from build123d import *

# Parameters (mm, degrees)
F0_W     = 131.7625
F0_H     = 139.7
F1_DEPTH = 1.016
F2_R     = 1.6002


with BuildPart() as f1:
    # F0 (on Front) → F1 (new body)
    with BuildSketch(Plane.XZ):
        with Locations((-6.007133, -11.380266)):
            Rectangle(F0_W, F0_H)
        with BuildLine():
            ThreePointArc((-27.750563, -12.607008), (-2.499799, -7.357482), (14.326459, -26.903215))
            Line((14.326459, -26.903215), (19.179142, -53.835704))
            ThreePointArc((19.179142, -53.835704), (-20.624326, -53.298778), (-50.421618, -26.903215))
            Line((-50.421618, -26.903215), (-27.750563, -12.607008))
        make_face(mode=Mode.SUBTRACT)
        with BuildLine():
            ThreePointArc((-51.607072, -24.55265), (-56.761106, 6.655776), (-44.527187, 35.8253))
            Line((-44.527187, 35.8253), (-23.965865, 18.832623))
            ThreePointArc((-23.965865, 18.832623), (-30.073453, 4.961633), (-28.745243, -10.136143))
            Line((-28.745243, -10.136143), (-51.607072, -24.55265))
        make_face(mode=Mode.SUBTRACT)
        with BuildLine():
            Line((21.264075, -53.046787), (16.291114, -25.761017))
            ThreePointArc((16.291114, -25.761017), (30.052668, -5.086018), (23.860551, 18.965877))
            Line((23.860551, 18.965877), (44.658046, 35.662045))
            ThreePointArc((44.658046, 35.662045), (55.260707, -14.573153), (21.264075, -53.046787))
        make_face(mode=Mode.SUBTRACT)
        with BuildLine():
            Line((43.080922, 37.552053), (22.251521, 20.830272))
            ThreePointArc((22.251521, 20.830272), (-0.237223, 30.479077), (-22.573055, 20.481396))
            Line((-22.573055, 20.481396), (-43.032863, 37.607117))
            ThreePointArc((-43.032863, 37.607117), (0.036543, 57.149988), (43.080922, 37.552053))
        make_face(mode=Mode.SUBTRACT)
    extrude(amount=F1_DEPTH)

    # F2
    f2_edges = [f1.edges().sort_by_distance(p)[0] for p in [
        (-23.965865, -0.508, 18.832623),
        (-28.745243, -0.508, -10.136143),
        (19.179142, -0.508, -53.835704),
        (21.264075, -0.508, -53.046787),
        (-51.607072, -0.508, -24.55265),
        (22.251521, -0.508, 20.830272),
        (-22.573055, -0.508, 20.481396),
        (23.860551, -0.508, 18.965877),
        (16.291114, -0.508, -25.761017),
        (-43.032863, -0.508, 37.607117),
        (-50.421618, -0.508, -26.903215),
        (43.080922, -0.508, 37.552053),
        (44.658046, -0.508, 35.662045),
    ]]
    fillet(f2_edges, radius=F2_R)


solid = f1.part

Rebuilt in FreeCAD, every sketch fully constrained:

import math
import FreeCAD as App
import Part
import Sketcher
Q = App.Units.Quantity


def edges_at(feature, points):
    """Names of the edges that pass closest to the given points."""
    edges = feature.Shape.Edges
    near = lambda p: min(range(len(edges)), key=lambda i: edges[i].distToShape(Part.Vertex(*p))[0])
    return sorted({f"Edge{near(p) + 1}" for p in points})


def add_polygon(sketch, points):
    """Adds a closed chain of lines whose ends are joined by coincident constraints."""
    first, n = sketch.GeometryCount, len(points)
    for a, b in zip(points, points[1:] + points[:1]):
        sketch.addGeometry(Part.LineSegment(App.Vector(*a, 0), App.Vector(*b, 0)), False)
    for i in range(n):
        sketch.addConstraint(Sketcher.Constraint("Coincident", first + i, 2, first + (i + 1) % n, 1))

doc = App.newDocument("Part")
body = doc.addObject("PartDesign::Body", "Body")

# Sketch on XZ plane
sketch1 = body.newObject("Sketcher::SketchObject", "Sketch")
sketch1.AttachmentSupport = (doc.getObject("XZ_Plane"), [""])
sketch1.MapMode = "FlatFace"
add_polygon(sketch1, [(-72, 58), (-72, -81), (60, -81), (60, 58)])  # lines 0-3
sketch1.addGeometry(Part.LineSegment(App.Vector(-50, -27, 0), App.Vector(-28, -13, 0)), False)  # 4
sketch1.addGeometry(Part.ArcOfCircle(Part.Circle(App.Vector(-11, -31, 0), App.Vector(0, 0, 1), 25), math.radians(10), math.radians(132)), False)  # 5
sketch1.addGeometry(Part.LineSegment(App.Vector(14, -27, 0), App.Vector(19, -54, 0)), False)  # 6
sketch1.addGeometry(Part.ArcOfCircle(Part.Circle(App.Vector(0, 0, 0), App.Vector(0, 0, 1), 57), math.radians(-152), math.radians(-70)), False)  # 7
sketch1.addGeometry(Part.ArcOfCircle(Part.Circle(App.Vector(0, 0, 0), App.Vector(0, 0, 1), 57), math.radians(-68), math.radians(39)), False)  # 8
sketch1.addGeometry(Part.LineSegment(App.Vector(21, -53, 0), App.Vector(16, -26, 0)), False)  # 9
sketch1.addGeometry(Part.ArcOfCircle(Part.Circle(App.Vector(0, 0, 0), App.Vector(0, 0, 1), 30), math.radians(-58), math.radians(38)), False)  # 10
sketch1.addGeometry(Part.LineSegment(App.Vector(24, 19, 0), App.Vector(45, 36, 0)), False)  # 11
sketch1.addGeometry(Part.LineSegment(App.Vector(-29, -10, 0), App.Vector(-52, -25, 0)), False)  # 12
sketch1.addGeometry(Part.ArcOfCircle(Part.Circle(App.Vector(0, 0, 0), App.Vector(0, 0, 1), 57), math.radians(141), math.radians(205)), False)  # 13
sketch1.addGeometry(Part.LineSegment(App.Vector(-45, 36, 0), App.Vector(-24, 19, 0)), False)  # 14
sketch1.addGeometry(Part.ArcOfCircle(Part.Circle(App.Vector(0, 0, 0), App.Vector(0, 0, 1), 30), math.radians(142), math.radians(199)), False)  # 15
sketch1.addGeometry(Part.ArcOfCircle(Part.Circle(App.Vector(0, 0, 0), App.Vector(0, 0, 1), 57), math.radians(41), math.radians(139)), False)  # 16
sketch1.addGeometry(Part.LineSegment(App.Vector(43, 38, 0), App.Vector(22, 21, 0)), False)  # 17
sketch1.addGeometry(Part.ArcOfCircle(Part.Circle(App.Vector(0, 0, 0), App.Vector(0, 0, 1), 30), math.radians(43), math.radians(138)), False)  # 18
sketch1.addGeometry(Part.LineSegment(App.Vector(-23, 20, 0), App.Vector(-43, 38, 0)), False)  # 19
sketch1.addConstraint(Sketcher.Constraint("Coincident", 4, 2, 5, 2))
sketch1.addConstraint(Sketcher.Constraint("Tangent", 5, 1, 6, 1))
sketch1.addConstraint(Sketcher.Constraint("Coincident", 6, 2, 7, 2))
sketch1.addConstraint(Sketcher.Constraint("Coincident", 7, 1, 4, 1))
sketch1.addConstraint(Sketcher.Constraint("Coincident", 8, 1, 9, 1))
sketch1.addConstraint(Sketcher.Constraint("Coincident", 9, 2, 10, 1))
sketch1.addConstraint(Sketcher.Constraint("Coincident", 10, 2, 11, 1))
sketch1.addConstraint(Sketcher.Constraint("Coincident", 11, 2, 8, 2))
sketch1.addConstraint(Sketcher.Constraint("Coincident", 12, 2, 13, 2))
sketch1.addConstraint(Sketcher.Constraint("Coincident", 13, 1, 14, 1))
sketch1.addConstraint(Sketcher.Constraint("Coincident", 14, 2, 15, 1))
sketch1.addConstraint(Sketcher.Constraint("Coincident", 15, 2, 12, 1))
sketch1.addConstraint(Sketcher.Constraint("Coincident", 16, 1, 17, 1))
sketch1.addConstraint(Sketcher.Constraint("Coincident", 17, 2, 18, 1))
sketch1.addConstraint(Sketcher.Constraint("Coincident", 18, 2, 19, 1))
sketch1.addConstraint(Sketcher.Constraint("Coincident", 19, 2, 16, 2))
sketch1.addConstraint(Sketcher.Constraint("Vertical", 0))
sketch1.addConstraint(Sketcher.Constraint("Horizontal", 1))
sketch1.addConstraint(Sketcher.Constraint("Vertical", 2))
sketch1.addConstraint(Sketcher.Constraint("Horizontal", 3))
sketch1.addConstraint(Sketcher.Constraint("Coincident", 7, 3, -1, 1))
sketch1.addConstraint(Sketcher.Constraint("Coincident", 8, 3, -1, 1))
sketch1.addConstraint(Sketcher.Constraint("Coincident", 10, 3, -1, 1))
sketch1.addConstraint(Sketcher.Constraint("Coincident", 13, 3, -1, 1))
sketch1.addConstraint(Sketcher.Constraint("Coincident", 15, 3, -1, 1))
sketch1.addConstraint(Sketcher.Constraint("Coincident", 16, 3, -1, 1))
sketch1.addConstraint(Sketcher.Constraint("Coincident", 18, 3, -1, 1))
sketch1.addConstraint(Sketcher.Constraint("Equal", 7, 8))
sketch1.addConstraint(Sketcher.Constraint("Equal", 8, 13))
sketch1.addConstraint(Sketcher.Constraint("Equal", 10, 15))
sketch1.addConstraint(Sketcher.Constraint("Equal", 13, 16))
sketch1.addConstraint(Sketcher.Constraint("Equal", 15, 18))
sketch1.addConstraint(Sketcher.Constraint("Parallel", 4, 12))
sketch1.addConstraint(Sketcher.Constraint("Parallel", 11, 17))
sketch1.addConstraint(Sketcher.Constraint("Horizontal", 5, 1, 7, 1))
sketch1.addConstraint(Sketcher.Constraint("Radius", 5, Q("1 in")))
sketch1.addConstraint(Sketcher.Constraint("Radius", 10, Q("1.1999999 in")))
sketch1.addConstraint(Sketcher.Constraint("Radius", 7, Q("2.25 in")))
sketch1.addConstraint(Sketcher.Constraint("DistanceY", 0, 2, 0, 1, Q("5.5 in")))
sketch1.addConstraint(Sketcher.Constraint("DistanceX", 1, 1, 1, 2, Q("5.1875 in")))
sketch1.addConstraint(Sketcher.Constraint("DistanceY", -1, 1, 13, 1, Q("35.8253 mm")))
sketch1.addConstraint(Sketcher.Constraint("DistanceY", 5, 1, 9, 2, Q("1.142198 mm")))
sketch1.addConstraint(Sketcher.Constraint("DistanceX", 17, 2, 16, 1, Q("20.829401 mm")))
sketch1.addConstraint(Sketcher.Constraint("Distance", 9, Q("27.735241 mm")))
sketch1.addConstraint(Sketcher.Constraint("DistanceX", -1, 1, 5, 1, Q("14.326459 mm")))
sketch1.addConstraint(Sketcher.Constraint("DistanceX", -1, 1, 6, 2, Q("19.179142 mm")))
sketch1.addConstraint(Sketcher.Constraint("DistanceX", 7, 1, -1, 1, Q("50.421618 mm")))
sketch1.addConstraint(Sketcher.Constraint("DistanceX", -1, 1, 10, 2, Q("23.860551 mm")))
sketch1.addConstraint(Sketcher.Constraint("DistanceY", 12, 2, -1, 1, Q("24.55265 mm")))
sketch1.addConstraint(Sketcher.Constraint("DistanceX", -1, 1, 16, 1, Q("43.080922 mm")))
sketch1.addConstraint(Sketcher.Constraint("DistanceX", 0, 2, 5, 3, Q("61.217369 mm")))
sketch1.addConstraint(Sketcher.Constraint("DistanceY", 0, 2, 5, 3, Q("49.823018 mm")))
sketch1.addConstraint(Sketcher.Constraint("DistanceX", 4, 2, 5, 3, Q("17.079549 mm")))
sketch1.addConstraint(Sketcher.Constraint("DistanceX", 15, 2, 14, 2, Q("4.779378 mm")))
sketch1.addConstraint(Sketcher.Constraint("DistanceX", 14, 2, 18, 2, Q("1.39281 mm")))
sketch1.addConstraint(Sketcher.Constraint("DistanceY", 18, 2, 19, 2, Q("17.125721 mm")))
pad1 = body.newObject("PartDesign::Pad", "Pad")
pad1.Profile = sketch1
pad1.Length = Q("0.04 in")
doc.recompute()

fillet = body.newObject("PartDesign::Fillet", "Fillet")
fillet.Base = (pad1, edges_at(pad1, [
    (-23.966, -0.508, 18.833),
    (-28.745, -0.508, -10.136),
    (19.179, -0.508, -53.836),
    (21.264, -0.508, -53.047),
    (-51.607, -0.508, -24.553),
    (22.252, -0.508, 20.83),
    (-22.573, -0.508, 20.481),
    (23.861, -0.508, 18.966),
    (16.291, -0.508, -25.761),
    (-43.033, -0.508, 37.607),
    (-50.422, -0.508, -26.903),
    (43.081, -0.508, 37.552),
    (44.658, -0.508, 35.662),
]))
fillet.Radius = Q("0.063 in")

doc.recompute()
